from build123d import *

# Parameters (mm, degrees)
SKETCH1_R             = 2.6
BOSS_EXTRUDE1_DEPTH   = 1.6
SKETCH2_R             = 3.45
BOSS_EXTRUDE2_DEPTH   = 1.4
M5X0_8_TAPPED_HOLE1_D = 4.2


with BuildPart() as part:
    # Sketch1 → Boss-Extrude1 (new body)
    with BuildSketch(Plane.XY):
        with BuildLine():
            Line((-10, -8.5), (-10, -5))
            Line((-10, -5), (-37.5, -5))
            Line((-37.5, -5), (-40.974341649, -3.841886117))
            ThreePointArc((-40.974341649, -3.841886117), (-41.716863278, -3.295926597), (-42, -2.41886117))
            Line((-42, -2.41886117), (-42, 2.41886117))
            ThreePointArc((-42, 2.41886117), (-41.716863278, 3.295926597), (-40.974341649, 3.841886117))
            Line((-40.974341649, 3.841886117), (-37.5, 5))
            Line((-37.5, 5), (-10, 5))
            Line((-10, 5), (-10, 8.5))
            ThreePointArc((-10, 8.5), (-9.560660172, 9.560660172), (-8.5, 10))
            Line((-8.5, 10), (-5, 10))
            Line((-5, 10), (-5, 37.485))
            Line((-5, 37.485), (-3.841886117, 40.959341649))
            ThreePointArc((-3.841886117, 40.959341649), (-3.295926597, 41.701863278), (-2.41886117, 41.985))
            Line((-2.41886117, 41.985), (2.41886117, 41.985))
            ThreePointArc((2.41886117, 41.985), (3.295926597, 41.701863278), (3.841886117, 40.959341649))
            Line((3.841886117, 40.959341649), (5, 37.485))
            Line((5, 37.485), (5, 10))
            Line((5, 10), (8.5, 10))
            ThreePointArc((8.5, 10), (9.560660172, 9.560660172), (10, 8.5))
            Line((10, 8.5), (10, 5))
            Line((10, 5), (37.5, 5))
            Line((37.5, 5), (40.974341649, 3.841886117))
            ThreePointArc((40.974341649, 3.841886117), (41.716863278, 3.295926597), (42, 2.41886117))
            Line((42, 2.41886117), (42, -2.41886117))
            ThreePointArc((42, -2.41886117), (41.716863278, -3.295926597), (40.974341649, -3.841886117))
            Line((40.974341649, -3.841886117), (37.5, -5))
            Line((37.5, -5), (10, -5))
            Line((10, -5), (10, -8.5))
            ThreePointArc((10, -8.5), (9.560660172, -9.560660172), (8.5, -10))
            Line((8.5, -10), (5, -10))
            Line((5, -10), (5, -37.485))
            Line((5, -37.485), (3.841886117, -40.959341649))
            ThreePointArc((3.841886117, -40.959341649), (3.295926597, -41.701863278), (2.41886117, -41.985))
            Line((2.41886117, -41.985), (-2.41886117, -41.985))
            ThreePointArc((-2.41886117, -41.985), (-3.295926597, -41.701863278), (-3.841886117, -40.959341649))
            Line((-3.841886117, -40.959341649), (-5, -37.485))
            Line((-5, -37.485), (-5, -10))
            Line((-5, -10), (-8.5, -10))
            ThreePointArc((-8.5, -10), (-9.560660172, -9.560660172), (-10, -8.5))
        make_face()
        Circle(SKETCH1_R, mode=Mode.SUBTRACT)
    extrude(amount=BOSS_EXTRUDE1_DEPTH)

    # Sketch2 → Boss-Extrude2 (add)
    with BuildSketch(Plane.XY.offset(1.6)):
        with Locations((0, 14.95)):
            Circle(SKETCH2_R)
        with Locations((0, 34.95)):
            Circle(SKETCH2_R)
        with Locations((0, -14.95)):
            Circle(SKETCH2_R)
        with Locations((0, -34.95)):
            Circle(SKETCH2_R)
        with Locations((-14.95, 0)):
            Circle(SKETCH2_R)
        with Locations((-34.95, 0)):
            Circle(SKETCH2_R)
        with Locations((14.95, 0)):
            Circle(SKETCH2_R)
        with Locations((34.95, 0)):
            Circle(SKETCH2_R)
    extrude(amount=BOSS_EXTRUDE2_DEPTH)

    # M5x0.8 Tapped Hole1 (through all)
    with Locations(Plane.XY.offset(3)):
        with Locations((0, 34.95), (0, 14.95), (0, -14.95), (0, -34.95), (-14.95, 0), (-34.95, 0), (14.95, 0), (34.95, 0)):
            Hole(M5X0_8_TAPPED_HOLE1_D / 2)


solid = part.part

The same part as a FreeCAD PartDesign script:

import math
import FreeCAD as App
import Part
import Sketcher

doc = App.newDocument("Part")
params = doc.addObject("Spreadsheet::Sheet", "Params")
for row, (alias, value) in enumerate([
    ("sketch1_diameter", "5.2 mm"),
    ("sketch1_radius", "1.5 mm"),
    ("sketch1_width", "3.5 mm"),
    ("sketch1_width2", "27.5 mm"),
    ("pad1_length", "1.6 mm"),
    ("sketch2_diameter", "6.9 mm"),
    ("pad2_length", "1.4 mm"),
    ("sketch3_diameter", "4.2 mm"),
    ("hole_diameter", "4.2 mm"),
], start=1):
    params.set(f"A{row}", alias)
    params.set(f"B{row}", "=" + value)
    params.setAlias(f"B{row}", alias)

body = doc.addObject("PartDesign::Body", "Body")

sketch1 = body.newObject("Sketcher::SketchObject", "Sketch")
sketch1.AttachmentSupport = (doc.getObject("XY_Plane"), [""])
sketch1.MapMode = "FlatFace"
sketch1.addGeometry(Part.LineSegment(App.Vector(-10, -5, 0), App.Vector(-10, -8.5, 0)), False)
sketch1.addGeometry(Part.ArcOfCircle(Part.Circle(App.Vector(-8.5, -8.5, 0), App.Vector(0, 0, 1), 1.5), math.radians(180), math.radians(270)), False)
sketch1.addGeometry(Part.LineSegment(App.Vector(-8.5, -10, 0), App.Vector(-5, -10, 0)), False)
sketch1.addGeometry(Part.LineSegment(App.Vector(-5, -10, 0), App.Vector(-5, -37.5, 0)), False)
sketch1.addGeometry(Part.LineSegment(App.Vector(-5, -37.5, 0), App.Vector(-3.8, -41, 0)), False)
sketch1.addGeometry(Part.ArcOfCircle(Part.Circle(App.Vector(-2.4, -40.5, 0), App.Vector(0, 0, 1), 1.5), math.radians(-162), math.radians(-90)), False)
sketch1.addGeometry(Part.LineSegment(App.Vector(-2.4, -42, 0), App.Vector(2.4, -42, 0)), False)
sketch1.addGeometry(Part.ArcOfCircle(Part.Circle(App.Vector(2.4, -40.5, 0), App.Vector(0, 0, 1), 1.5), math.radians(-90), math.radians(-18)), False)
sketch1.addGeometry(Part.LineSegment(App.Vector(3.8, -41, 0), App.Vector(5, -37.5, 0)), False)
sketch1.addGeometry(Part.LineSegment(App.Vector(5, -37.5, 0), App.Vector(5, -10, 0)), False)
sketch1.addGeometry(Part.LineSegment(App.Vector(5, -10, 0), App.Vector(8.5, -10, 0)), False)
sketch1.addGeometry(Part.ArcOfCircle(Part.Circle(App.Vector(8.5, -8.5, 0), App.Vector(0, 0, 1), 1.5), math.radians(-90), math.radians(0)), False)
sketch1.addGeometry(Part.LineSegment(App.Vector(10, -8.5, 0), App.Vector(10, -5, 0)), False)
sketch1.addGeometry(Part.LineSegment(App.Vector(10, -5, 0), App.Vector(37.5, -5, 0)), False)
sketch1.addGeometry(Part.LineSegment(App.Vector(37.5, -5, 0), App.Vector(41, -3.8, 0)), False)
sketch1.addGeometry(Part.ArcOfCircle(Part.Circle(App.Vector(40.5, -2.4, 0), App.Vector(0, 0, 1), 1.5), math.radians(-72), math.radians(0)), False)
sketch1.addGeometry(Part.LineSegment(App.Vector(42, -2.4, 0), App.Vector(42, 2.4, 0)), False)
sketch1.addGeometry(Part.ArcOfCircle(Part.Circle(App.Vector(40.5, 2.4, 0), App.Vector(0, 0, 1), 1.5), math.radians(0), math.radians(72)), False)
sketch1.addGeometry(Part.LineSegment(App.Vector(41, 3.8, 0), App.Vector(37.5, 5, 0)), False)
sketch1.addGeometry(Part.LineSegment(App.Vector(37.5, 5, 0), App.Vector(10, 5, 0)), False)
sketch1.addGeometry(Part.LineSegment(App.Vector(10, 5, 0), App.Vector(10, 8.5, 0)), False)
sketch1.addGeometry(Part.ArcOfCircle(Part.Circle(App.Vector(8.5, 8.5, 0), App.Vector(0, 0, 1), 1.5), math.radians(0), math.radians(90)), False)
sketch1.addGeometry(Part.LineSegment(App.Vector(8.5, 10, 0), App.Vector(5, 10, 0)), False)
sketch1.addGeometry(Part.LineSegment(App.Vector(5, 10, 0), App.Vector(5, 37.5, 0)), False)
sketch1.addGeometry(Part.LineSegment(App.Vector(5, 37.5, 0), App.Vector(3.8, 41, 0)), False)
sketch1.addGeometry(Part.ArcOfCircle(Part.Circle(App.Vector(2.4, 40.5, 0), App.Vector(0, 0, 1), 1.5), math.radians(18), math.radians(90)), False)
sketch1.addGeometry(Part.LineSegment(App.Vector(2.4, 42, 0), App.Vector(-2.4, 42, 0)), False)
sketch1.addGeometry(Part.ArcOfCircle(Part.Circle(App.Vector(-2.4, 40.5, 0), App.Vector(0, 0, 1), 1.5), math.radians(90), math.radians(162)), False)
sketch1.addGeometry(Part.LineSegment(App.Vector(-3.8, 41, 0), App.Vector(-5, 37.5, 0)), False)
sketch1.addGeometry(Part.LineSegment(App.Vector(-5, 37.5, 0), App.Vector(-5, 10, 0)), False)
sketch1.addGeometry(Part.LineSegment(App.Vector(-5, 10, 0), App.Vector(-8.5, 10, 0)), False)
sketch1.addGeometry(Part.ArcOfCircle(Part.Circle(App.Vector(-8.5, 8.5, 0), App.Vector(0, 0, 1), 1.5), math.radians(90), math.radians(180)), False)
sketch1.addGeometry(Part.LineSegment(App.Vector(-10, 8.5, 0), App.Vector(-10, 5, 0)), False)
sketch1.addGeometry(Part.LineSegment(App.Vector(-10, 5, 0), App.Vector(-37.5, 5, 0)), False)
sketch1.addGeometry(Part.LineSegment(App.Vector(-37.5, 5, 0), App.Vector(-41, 3.8, 0)), False)
sketch1.addGeometry(Part.ArcOfCircle(Part.Circle(App.Vector(-40.5, 2.4, 0), App.Vector(0, 0, 1), 1.5), math.radians(108), math.radians(180)), False)
sketch1.addGeometry(Part.LineSegment(App.Vector(-42, 2.4, 0), App.Vector(-42, -2.4, 0)), False)
sketch1.addGeometry(Part.ArcOfCircle(Part.Circle(App.Vector(-40.5, -2.4, 0), App.Vector(0, 0, 1), 1.5), math.radians(180), math.radians(252)), False)
sketch1.addGeometry(Part.LineSegment(App.Vector(-41, -3.8, 0), App.Vector(-37.5, -5, 0)), False)
sketch1.addGeometry(Part.LineSegment(App.Vector(-37.5, -5, 0), App.Vector(-10, -5, 0)), False)
sketch1.addGeometry(Part.Circle(App.Vector(0, 0, 0), App.Vector(0, 0, 1), 2.6), False)
sketch1.addConstraint(Sketcher.Constraint("Tangent", 0, 2, 1, 1))
sketch1.addConstraint(Sketcher.Constraint("Tangent", 1, 2, 2, 1))
sketch1.addConstraint(Sketcher.Constraint("Coincident", 2, 2, 3, 1))
sketch1.addConstraint(Sketcher.Constraint("Coincident", 3, 2, 4, 1))
sketch1.addConstraint(Sketcher.Constraint("Tangent", 4, 2, 5, 1))
sketch1.addConstraint(Sketcher.Constraint("Tangent", 5, 2, 6, 1))
sketch1.addConstraint(Sketcher.Constraint("Tangent", 6, 2, 7, 1))
sketch1.addConstraint(Sketcher.Constraint("Tangent", 7, 2, 8, 1))
sketch1.addConstraint(Sketcher.Constraint("Coincident", 8, 2, 9, 1))
sketch1.addConstraint(Sketcher.Constraint("Coincident", 9, 2, 10, 1))
sketch1.addConstraint(Sketcher.Constraint("Tangent", 10, 2, 11, 1))
sketch1.addConstraint(Sketcher.Constraint("Tangent", 11, 2, 12, 1))
sketch1.addConstraint(Sketcher.Constraint("Coincident", 12, 2, 13, 1))
sketch1.addConstraint(Sketcher.Constraint("Coincident", 13, 2, 14, 1))
sketch1.addConstraint(Sketcher.Constraint("Tangent", 14, 2, 15, 1))
sketch1.addConstraint(Sketcher.Constraint("Tangent", 15, 2, 16, 1))
sketch1.addConstraint(Sketcher.Constraint("Tangent", 16, 2, 17, 1))
sketch1.addConstraint(Sketcher.Constraint("Tangent", 17, 2, 18, 1))
sketch1.addConstraint(Sketcher.Constraint("Coincident", 18, 2, 19, 1))
sketch1.addConstraint(Sketcher.Constraint("Coincident", 19, 2, 20, 1))
sketch1.addConstraint(Sketcher.Constraint("Tangent", 20, 2, 21, 1))
sketch1.addConstraint(Sketcher.Constraint("Tangent", 21, 2, 22, 1))
sketch1.addConstraint(Sketcher.Constraint("Coincident", 22, 2, 23, 1))
sketch1.addConstraint(Sketcher.Constraint("Coincident", 23, 2, 24, 1))
sketch1.addConstraint(Sketcher.Constraint("Tangent", 24, 2, 25, 1))
sketch1.addConstraint(Sketcher.Constraint("Tangent", 25, 2, 26, 1))
sketch1.addConstraint(Sketcher.Constraint("Tangent", 26, 2, 27, 1))
sketch1.addConstraint(Sketcher.Constraint("Tangent", 27, 2, 28, 1))
sketch1.addConstraint(Sketcher.Constraint("Coincident", 28, 2, 29, 1))
sketch1.addConstraint(Sketcher.Constraint("Coincident", 29, 2, 30, 1))
sketch1.addConstraint(Sketcher.Constraint("Tangent", 30, 2, 31, 1))
sketch1.addConstraint(Sketcher.Constraint("Tangent", 31, 2, 32, 1))
sketch1.addConstraint(Sketcher.Constraint("Coincident", 32, 2, 33, 1))
sketch1.addConstraint(Sketcher.Constraint("Coincident", 33, 2, 34, 1))
sketch1.addConstraint(Sketcher.Constraint("Tangent", 34, 2, 35, 1))
sketch1.addConstraint(Sketcher.Constraint("Tangent", 35, 2, 36, 1))
sketch1.addConstraint(Sketcher.Constraint("Tangent", 36, 2, 37, 1))
sketch1.addConstraint(Sketcher.Constraint("Tangent", 37, 2, 38, 1))
sketch1.addConstraint(Sketcher.Constraint("Coincident", 38, 2, 39, 1))
sketch1.addConstraint(Sketcher.Constraint("Coincident", 39, 2, 0, 1))
sketch1.addConstraint(Sketcher.Constraint("Vertical", 0))
sketch1.addConstraint(Sketcher.Constraint("Horizontal", 2))
sketch1.addConstraint(Sketcher.Constraint("Vertical", 3))
sketch1.addConstraint(Sketcher.Constraint("Horizontal", 6))
sketch1.addConstraint(Sketcher.Constraint("Vertical", 9))
sketch1.addConstraint(Sketcher.Constraint("Horizontal", 10))
sketch1.addConstraint(Sketcher.Constraint("Vertical", 12))
sketch1.addConstraint(Sketcher.Constraint("Horizontal", 13))
sketch1.addConstraint(Sketcher.Constraint("Vertical", 16))
sketch1.addConstraint(Sketcher.Constraint("Horizontal", 19))
sketch1.addConstraint(Sketcher.Constraint("Vertical", 20))
sketch1.addConstraint(Sketcher.Constraint("Horizontal", 22))
sketch1.addConstraint(Sketcher.Constraint("Vertical", 23))
sketch1.addConstraint(Sketcher.Constraint("Horizontal", 26))
sketch1.addConstraint(Sketcher.Constraint("Vertical", 29))
sketch1.addConstraint(Sketcher.Constraint("Horizontal", 30))
sketch1.addConstraint(Sketcher.Constraint("Vertical", 32))
sketch1.addConstraint(Sketcher.Constraint("Horizontal", 33))
sketch1.addConstraint(Sketcher.Constraint("Vertical", 36))
sketch1.addConstraint(Sketcher.Constraint("Horizontal", 39))
sketch1.addConstraint(Sketcher.Constraint("Coincident", 40, 3, -1, 1))
sketch1.addConstraint(Sketcher.Constraint("Equal", 1, 5))
sketch1.addConstraint(Sketcher.Constraint("Equal", 5, 7))
sketch1.addConstraint(Sketcher.Constraint("Equal", 7, 11))
sketch1.addConstraint(Sketcher.Constraint("Equal", 11, 15))
sketch1.addConstraint(Sketcher.Constraint("Equal", 15, 17))
sketch1.addConstraint(Sketcher.Constraint("Equal", 17, 21))
sketch1.addConstraint(Sketcher.Constraint("Equal", 21, 25))
sketch1.addConstraint(Sketcher.Constraint("Equal", 25, 27))
sketch1.addConstraint(Sketcher.Constraint("Equal", 27, 31))
sketch1.addConstraint(Sketcher.Constraint("Equal", 31, 35))
sketch1.addConstraint(Sketcher.Constraint("Equal", 35, 37))
sketch1.addConstraint(Sketcher.Constraint("Symmetric", 1, 3, 21, 3, -1, 1))
sketch1.addConstraint(Sketcher.Constraint("Symmetric", 5, 3, 25, 3, -1, 1))
sketch1.addConstraint(Sketcher.Constraint("Symmetric", 11, 3, 31, 3, -1, 1))
sketch1.addConstraint(Sketcher.Constraint("Symmetric", 15, 3, 35, 3, -1, 1))
sketch1.addConstraint(Sketcher.Constraint("Symmetric", 3, 2, 23, 2, -1, 1))
sketch1.addConstraint(Sketcher.Constraint("Symmetric", 7, 2, 27, 2, -1, 1))
sketch1.addConstraint(Sketcher.Constraint("Symmetric", 13, 2, 33, 2, -1, 1))
sketch1.addConstraint(Sketcher.Constraint("Symmetric", 17, 2, 37, 2, -1, 1))
sketch1.addConstraint(Sketcher.Constraint("Symmetric", 1, 3, 11, 3, -2))
sketch1.addConstraint(Sketcher.Constraint("Symmetric", 4, 2, 7, 2, -2))
sketch1.addConstraint(Sketcher.Constraint("Symmetric", 18, 2, 33, 2, -2))
sketch1.addConstraint(Sketcher.Constraint("Perpendicular", 4, 14))
sketch1.addConstraint(Sketcher.Constraint("Perpendicular", 8, 18))
sketch1.addConstraint(Sketcher.Constraint("Horizontal", 3, 2, 8, 2))
sketch1.addConstraint(Sketcher.Constraint("Horizontal", 23, 2, 28, 2))
sketch1.addConstraint(Sketcher.Constraint("Horizontal", 13, 2, 38, 2))
sketch1.addConstraint(Sketcher.Constraint("Equal", 30, 0))
sketch1.addConstraint(Sketcher.Constraint("Equal", 26, 16))
sketch1.addConstraint(Sketcher.Constraint("Equal", 8, 14))
sketch1.addConstraint(Sketcher.Constraint("Diameter", 40, 5.2))
sketch1.addConstraint(Sketcher.Constraint("Radius", 1, 1.5))
sketch1.addConstraint(Sketcher.Constraint("DistanceX", 2, 1, 2, 2, 3.5))
sketch1.addConstraint(Sketcher.Constraint("DistanceX", 13, 1, 13, 2, 27.5))
sketch1.addConstraint(Sketcher.Constraint("DistanceX", 0, 2, -1, 1, 10.0))
sketch1.addConstraint(Sketcher.Constraint("DistanceX", -1, 1, 15, 2, 42.0))
sketch1.addConstraint(Sketcher.Constraint("DistanceY", 3, 2, 3, 1, 27.485))
sketch1.addConstraint(Sketcher.Constraint("DistanceX", 6, 1, 6, 2, 4.837722))
sketch1.setExpression("Constraints[91]", "Params.sketch1_diameter")
sketch1.setExpression("Constraints[92]", "Params.sketch1_radius")
sketch1.setExpression("Constraints[93]", "Params.sketch1_width")
sketch1.setExpression("Constraints[94]", "Params.sketch1_width2")
pad1 = body.newObject("PartDesign::Pad", "Pad")
pad1.Profile = sketch1
pad1.setExpression("Length", "Params.pad1_length")

sketch2 = body.newObject("Sketcher::SketchObject", "Sketch001")
sketch2.AttachmentSupport = (doc.getObject("XY_Plane"), [""])
sketch2.MapMode = "FlatFace"
sketch2.AttachmentOffset = App.Placement(App.Vector(0, 0, 1.6), App.Rotation())
sketch2.addGeometry(Part.Circle(App.Vector(0, 14.9, 0), App.Vector(0, 0, 1), 3.5), False)
sketch2.addGeometry(Part.Circle(App.Vector(0, 35, 0), App.Vector(0, 0, 1), 3.5), False)
sketch2.addGeometry(Part.Circle(App.Vector(0, -14.9, 0), App.Vector(0, 0, 1), 3.5), False)
sketch2.addGeometry(Part.Circle(App.Vector(0, -35, 0), App.Vector(0, 0, 1), 3.5), False)
sketch2.addGeometry(Part.Circle(App.Vector(-14.9, 0, 0), App.Vector(0, 0, 1), 3.5), False)
sketch2.addGeometry(Part.Circle(App.Vector(-35, 0, 0), App.Vector(0, 0, 1), 3.5), False)
sketch2.addGeometry(Part.Circle(App.Vector(14.9, 0, 0), App.Vector(0, 0, 1), 3.5), False)
sketch2.addGeometry(Part.Circle(App.Vector(35, 0, 0), App.Vector(0, 0, 1), 3.5), False)
sketch2.addConstraint(Sketcher.Constraint("Equal", 0, 1))
sketch2.addConstraint(Sketcher.Constraint("Equal", 1, 2))
sketch2.addConstraint(Sketcher.Constraint("Equal", 2, 3))
sketch2.addConstraint(Sketcher.Constraint("Equal", 3, 4))
sketch2.addConstraint(Sketcher.Constraint("Equal", 4, 5))
sketch2.addConstraint(Sketcher.Constraint("Equal", 5, 6))
sketch2.addConstraint(Sketcher.Constraint("Equal", 6, 7))
sketch2.addConstraint(Sketcher.Constraint("Symmetric", 0, 3, 2, 3, -1, 1))
sketch2.addConstraint(Sketcher.Constraint("Symmetric", 1, 3, 3, 3, -1, 1))
sketch2.addConstraint(Sketcher.Constraint("Symmetric", 4, 3, 6, 3, -1, 1))
sketch2.addConstraint(Sketcher.Constraint("Symmetric", 5, 3, 7, 3, -1, 1))
sketch2.addConstraint(Sketcher.Constraint("PointOnObject", 0, 3, -2))
sketch2.addConstraint(Sketcher.Constraint("PointOnObject", 1, 3, -2))
sketch2.addConstraint(Sketcher.Constraint("PointOnObject", 4, 3, -1))
sketch2.addConstraint(Sketcher.Constraint("PointOnObject", 5, 3, -1))
sketch2.addConstraint(Sketcher.Constraint("Diameter", 0, 6.9))
sketch2.addConstraint(Sketcher.Constraint("DistanceY", 0, 3, 1, 3, 20.0))
sketch2.addConstraint(Sketcher.Constraint("DistanceX", 5, 3, 4, 3, 20.0))
sketch2.addConstraint(Sketcher.Constraint("DistanceY", 2, 3, 0, 3, 29.9))
sketch2.addConstraint(Sketcher.Constraint("DistanceX", 4, 3, 6, 3, 29.9))
sketch2.setExpression("Constraints[15]", "Params.sketch2_diameter")
pad2 = body.newObject("PartDesign::Pad", "Pad001")
pad2.Profile = sketch2
pad2.setExpression("Length", "Params.pad2_length")

sketch3 = body.newObject("Sketcher::SketchObject", "Sketch002")
sketch3.AttachmentSupport = (doc.getObject("XY_Plane"), [""])
sketch3.MapMode = "FlatFace"
sketch3.AttachmentOffset = App.Placement(App.Vector(0, 0, 3), App.Rotation())
sketch3.addGeometry(Part.Circle(App.Vector(0, 35, 0), App.Vector(0, 0, 1), 2.1), False)
sketch3.addGeometry(Part.Circle(App.Vector(0, 14.9, 0), App.Vector(0, 0, 1), 2.1), False)
sketch3.addGeometry(Part.Circle(App.Vector(0, -14.9, 0), App.Vector(0, 0, 1), 2.1), False)
sketch3.addGeometry(Part.Circle(App.Vector(0, -35, 0), App.Vector(0, 0, 1), 2.1), False)
sketch3.addGeometry(Part.Circle(App.Vector(-14.9, 0, 0), App.Vector(0, 0, 1), 2.1), False)
sketch3.addGeometry(Part.Circle(App.Vector(-35, 0, 0), App.Vector(0, 0, 1), 2.1), False)
sketch3.addGeometry(Part.Circle(App.Vector(14.9, 0, 0), App.Vector(0, 0, 1), 2.1), False)
sketch3.addGeometry(Part.Circle(App.Vector(35, 0, 0), App.Vector(0, 0, 1), 2.1), False)
sketch3.addConstraint(Sketcher.Constraint("Equal", 0, 1))
sketch3.addConstraint(Sketcher.Constraint("Equal", 1, 2))
sketch3.addConstraint(Sketcher.Constraint("Equal", 2, 3))
sketch3.addConstraint(Sketcher.Constraint("Equal", 3, 4))
sketch3.addConstraint(Sketcher.Constraint("Equal", 4, 5))
sketch3.addConstraint(Sketcher.Constraint("Equal", 5, 6))
sketch3.addConstraint(Sketcher.Constraint("Equal", 6, 7))
sketch3.addConstraint(Sketcher.Constraint("Symmetric", 1, 3, 2, 3, -1, 1))
sketch3.addConstraint(Sketcher.Constraint("Symmetric", 0, 3, 3, 3, -1, 1))
sketch3.addConstraint(Sketcher.Constraint("Symmetric", 4, 3, 6, 3, -1, 1))
sketch3.addConstraint(Sketcher.Constraint("Symmetric", 5, 3, 7, 3, -1, 1))
sketch3.addConstraint(Sketcher.Constraint("PointOnObject", 0, 3, -2))
sketch3.addConstraint(Sketcher.Constraint("PointOnObject", 1, 3, -2))
sketch3.addConstraint(Sketcher.Constraint("PointOnObject", 4, 3, -1))
sketch3.addConstraint(Sketcher.Constraint("PointOnObject", 5, 3, -1))
sketch3.addConstraint(Sketcher.Constraint("Diameter", 0, 4.2))
sketch3.addConstraint(Sketcher.Constraint("DistanceY", 1, 3, 0, 3, 20.0))
sketch3.addConstraint(Sketcher.Constraint("DistanceX", 5, 3, 4, 3, 20.0))
sketch3.addConstraint(Sketcher.Constraint("DistanceY", 2, 3, 1, 3, 29.9))
sketch3.addConstraint(Sketcher.Constraint("DistanceX", 4, 3, 6, 3, 29.9))
sketch3.setExpression("Constraints[15]", "Params.sketch3_diameter")
doc.recompute()
hole = body.newObject("PartDesign::Hole", "Hole")
hole.Profile = sketch3
hole.ThreadType = "None"
hole.setExpression("Diameter", "Params.hole_diameter")
hole.DepthType = "ThroughAll"

doc.recompute()
